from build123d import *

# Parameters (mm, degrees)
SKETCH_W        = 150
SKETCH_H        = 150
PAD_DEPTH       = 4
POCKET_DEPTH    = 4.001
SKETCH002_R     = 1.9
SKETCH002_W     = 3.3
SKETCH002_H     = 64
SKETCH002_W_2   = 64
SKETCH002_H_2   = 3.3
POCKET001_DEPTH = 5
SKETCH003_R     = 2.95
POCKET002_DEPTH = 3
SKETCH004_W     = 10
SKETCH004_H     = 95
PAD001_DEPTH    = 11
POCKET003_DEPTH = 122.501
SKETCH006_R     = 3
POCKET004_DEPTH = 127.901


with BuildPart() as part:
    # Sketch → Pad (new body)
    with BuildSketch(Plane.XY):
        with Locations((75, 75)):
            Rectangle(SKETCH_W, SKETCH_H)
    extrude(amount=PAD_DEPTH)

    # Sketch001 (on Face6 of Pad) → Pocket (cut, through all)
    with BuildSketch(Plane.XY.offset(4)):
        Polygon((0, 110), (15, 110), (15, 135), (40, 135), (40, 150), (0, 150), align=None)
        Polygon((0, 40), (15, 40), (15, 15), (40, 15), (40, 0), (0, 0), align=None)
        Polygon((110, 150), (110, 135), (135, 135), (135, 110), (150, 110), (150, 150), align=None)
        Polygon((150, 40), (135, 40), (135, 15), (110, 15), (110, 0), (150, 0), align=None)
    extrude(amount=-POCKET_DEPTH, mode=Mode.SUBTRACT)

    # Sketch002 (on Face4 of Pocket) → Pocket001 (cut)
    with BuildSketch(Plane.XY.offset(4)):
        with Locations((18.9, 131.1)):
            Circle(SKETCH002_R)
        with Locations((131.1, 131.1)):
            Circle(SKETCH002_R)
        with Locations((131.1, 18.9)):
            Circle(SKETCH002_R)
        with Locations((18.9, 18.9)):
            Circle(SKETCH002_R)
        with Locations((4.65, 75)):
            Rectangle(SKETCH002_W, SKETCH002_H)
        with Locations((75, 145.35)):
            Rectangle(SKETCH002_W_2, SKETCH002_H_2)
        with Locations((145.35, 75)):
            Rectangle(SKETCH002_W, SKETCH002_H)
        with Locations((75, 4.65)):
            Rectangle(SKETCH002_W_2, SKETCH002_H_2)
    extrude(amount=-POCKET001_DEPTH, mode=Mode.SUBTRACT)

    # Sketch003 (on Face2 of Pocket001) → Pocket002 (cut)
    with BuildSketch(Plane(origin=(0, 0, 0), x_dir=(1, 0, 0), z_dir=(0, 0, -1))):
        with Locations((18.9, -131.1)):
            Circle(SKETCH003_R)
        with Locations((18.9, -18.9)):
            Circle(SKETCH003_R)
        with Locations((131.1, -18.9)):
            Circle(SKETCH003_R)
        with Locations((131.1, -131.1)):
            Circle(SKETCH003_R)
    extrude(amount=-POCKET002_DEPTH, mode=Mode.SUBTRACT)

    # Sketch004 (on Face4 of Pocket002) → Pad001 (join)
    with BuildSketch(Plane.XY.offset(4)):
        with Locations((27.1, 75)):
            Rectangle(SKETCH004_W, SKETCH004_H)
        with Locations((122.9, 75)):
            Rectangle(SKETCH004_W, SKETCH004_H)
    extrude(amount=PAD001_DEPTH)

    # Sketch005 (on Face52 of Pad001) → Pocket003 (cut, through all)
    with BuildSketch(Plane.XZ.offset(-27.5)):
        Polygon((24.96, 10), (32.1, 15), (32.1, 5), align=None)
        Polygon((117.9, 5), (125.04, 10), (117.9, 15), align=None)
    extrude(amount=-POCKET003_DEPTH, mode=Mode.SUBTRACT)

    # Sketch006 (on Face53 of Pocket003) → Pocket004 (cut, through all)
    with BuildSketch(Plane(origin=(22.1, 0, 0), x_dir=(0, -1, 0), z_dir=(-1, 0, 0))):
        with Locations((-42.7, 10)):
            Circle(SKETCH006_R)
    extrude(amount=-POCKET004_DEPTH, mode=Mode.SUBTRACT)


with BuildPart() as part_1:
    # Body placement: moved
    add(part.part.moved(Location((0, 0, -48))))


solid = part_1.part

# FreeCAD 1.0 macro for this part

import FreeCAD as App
import Part
import Sketcher

V = App.Vector
Q = App.Units.Quantity

doc = App.newDocument("Part")
body = doc.addObject("PartDesign::Body", "Body")

# Sketch on XY plane
sketch1 = doc.addObject("Sketcher::SketchObject", "Sketch")
body.addObject(sketch1)
sketch1.AttachmentSupport = (doc.XY_Plane, [""])
sketch1.MapMode = "FlatFace"
sketch1.addGeometry(Part.LineSegment(V(0, 150, 0), V(0, 0, 0)), False)
sketch1.addGeometry(Part.LineSegment(V(0, 0, 0), V(150, 0, 0)), False)
sketch1.addGeometry(Part.LineSegment(V(150, 0, 0), V(150, 150, 0)), False)
sketch1.addGeometry(Part.LineSegment(V(150, 150, 0), V(0, 150, 0)), False)
sketch1.addConstraint(Sketcher.Constraint("Coincident", 0, 2, 1, 1))
sketch1.addConstraint(Sketcher.Constraint("Coincident", 1, 2, 2, 1))
sketch1.addConstraint(Sketcher.Constraint("Coincident", 2, 2, 3, 1))
sketch1.addConstraint(Sketcher.Constraint("Coincident", 3, 2, 0, 1))
sketch1.addConstraint(Sketcher.Constraint("Vertical", 0))
sketch1.addConstraint(Sketcher.Constraint("Horizontal", 1))
sketch1.addConstraint(Sketcher.Constraint("Vertical", 2))
sketch1.addConstraint(Sketcher.Constraint("Horizontal", 3))
sketch1.addConstraint(Sketcher.Constraint("Coincident", 0, 2, -1, 1))
sketch1.addConstraint(Sketcher.Constraint("Equal", 3, 0))
sketch1.addConstraint(Sketcher.Constraint("DistanceX", 1, 1, 1, 2, Q("150 mm")))
pad1 = doc.addObject("PartDesign::Pad", "Pad")
body.addObject(pad1)
pad1.Profile = sketch1
pad1.Length = 4

# Sketch on XY plane
sketch2 = doc.addObject("Sketcher::SketchObject", "Sketch001")
body.addObject(sketch2)
sketch2.AttachmentSupport = (doc.XY_Plane, [""])
sketch2.MapMode = "FlatFace"
sketch2.AttachmentOffset = App.Placement(V(0, 0, 4), App.Rotation())
sketch2.addGeometry(Part.LineSegment(V(0, 110, 0), V(15, 110, 0)), False)
sketch2.addGeometry(Part.LineSegment(V(15, 110, 0), V(15, 135, 0)), False)
sketch2.addGeometry(Part.LineSegment(V(15, 135, 0), V(40, 135, 0)), False)
sketch2.addGeometry(Part.LineSegment(V(40, 135, 0), V(40, 150, 0)), False)
sketch2.addGeometry(Part.LineSegment(V(40, 150, 0), V(0, 150, 0)), False)
sketch2.addGeometry(Part.LineSegment(V(0, 150, 0), V(0, 110, 0)), False)
sketch2.addGeometry(Part.LineSegment(V(15, 40, 0), V(0, 40, 0)), False)
sketch2.addGeometry(Part.LineSegment(V(0, 40, 0), V(0, 0, 0)), False)
sketch2.addGeometry(Part.LineSegment(V(0, 0, 0), V(40, 0, 0)), False)
sketch2.addGeometry(Part.LineSegment(V(40, 0, 0), V(40, 15, 0)), False)
sketch2.addGeometry(Part.LineSegment(V(40, 15, 0), V(15, 15, 0)), False)
sketch2.addGeometry(Part.LineSegment(V(15, 15, 0), V(15, 40, 0)), False)
sketch2.addGeometry(Part.LineSegment(V(110, 150, 0), V(110, 135, 0)), False)
sketch2.addGeometry(Part.LineSegment(V(110, 135, 0), V(135, 135, 0)), False)
sketch2.addGeometry(Part.LineSegment(V(135, 135, 0), V(135, 110, 0)), False)
sketch2.addGeometry(Part.LineSegment(V(135, 110, 0), V(150, 110, 0)), False)
sketch2.addGeometry(Part.LineSegment(V(150, 110, 0), V(150, 150, 0)), False)
sketch2.addGeometry(Part.LineSegment(V(150, 150, 0), V(110, 150, 0)), False)
sketch2.addGeometry(Part.LineSegment(V(150, 40, 0), V(135, 40, 0)), False)
sketch2.addGeometry(Part.LineSegment(V(135, 40, 0), V(135, 15, 0)), False)
sketch2.addGeometry(Part.LineSegment(V(135, 15, 0), V(110, 15, 0)), False)
sketch2.addGeometry(Part.LineSegment(V(110, 15, 0), V(110, 0, 0)), False)
sketch2.addGeometry(Part.LineSegment(V(110, 0, 0), V(150, 0, 0)), False)
sketch2.addGeometry(Part.LineSegment(V(150, 0, 0), V(150, 40, 0)), False)
sketch2.addConstraint(Sketcher.Constraint("Coincident", 0, 2, 1, 1))
sketch2.addConstraint(Sketcher.Constraint("Coincident", 1, 2, 2, 1))
sketch2.addConstraint(Sketcher.Constraint("Coincident", 2, 2, 3, 1))
sketch2.addConstraint(Sketcher.Constraint("Coincident", 3, 2, 4, 1))
sketch2.addConstraint(Sketcher.Constraint("Coincident", 4, 2, 5, 1))
sketch2.addConstraint(Sketcher.Constraint("Coincident", 5, 2, 0, 1))
sketch2.addConstraint(Sketcher.Constraint("Coincident", 6, 2, 7, 1))
sketch2.addConstraint(Sketcher.Constraint("Coincident", 7, 2, 8, 1))
sketch2.addConstraint(Sketcher.Constraint("Coincident", 8, 2, 9, 1))
sketch2.addConstraint(Sketcher.Constraint("Coincident", 9, 2, 10, 1))
sketch2.addConstraint(Sketcher.Constraint("Coincident", 10, 2, 11, 1))
sketch2.addConstraint(Sketcher.Constraint("Coincident", 11, 2, 6, 1))
sketch2.addConstraint(Sketcher.Constraint("Coincident", 12, 2, 13, 1))
sketch2.addConstraint(Sketcher.Constraint("Coincident", 13, 2, 14, 1))
sketch2.addConstraint(Sketcher.Constraint("Coincident", 14, 2, 15, 1))
sketch2.addConstraint(Sketcher.Constraint("Coincident", 15, 2, 16, 1))
sketch2.addConstraint(Sketcher.Constraint("Coincident", 16, 2, 17, 1))
sketch2.addConstraint(Sketcher.Constraint("Coincident", 17, 2, 12, 1))
sketch2.addConstraint(Sketcher.Constraint("Coincident", 18, 2, 19, 1))
sketch2.addConstraint(Sketcher.Constraint("Coincident", 19, 2, 20, 1))
sketch2.addConstraint(Sketcher.Constraint("Coincident", 20, 2, 21, 1))
sketch2.addConstraint(Sketcher.Constraint("Coincident", 21, 2, 22, 1))
sketch2.addConstraint(Sketcher.Constraint("Coincident", 22, 2, 23, 1))
sketch2.addConstraint(Sketcher.Constraint("Coincident", 23, 2, 18, 1))
sketch2.addConstraint(Sketcher.Constraint("Horizontal", 0))
sketch2.addConstraint(Sketcher.Constraint("Vertical", 1))
sketch2.addConstraint(Sketcher.Constraint("Horizontal", 2))
sketch2.addConstraint(Sketcher.Constraint("Vertical", 3))
sketch2.addConstraint(Sketcher.Constraint("Horizontal", 4))
sketch2.addConstraint(Sketcher.Constraint("Vertical", 5))
sketch2.addConstraint(Sketcher.Constraint("Horizontal", 6))
sketch2.addConstraint(Sketcher.Constraint("Vertical", 7))
sketch2.addConstraint(Sketcher.Constraint("Horizontal", 8))
sketch2.addConstraint(Sketcher.Constraint("Vertical", 9))
sketch2.addConstraint(Sketcher.Constraint("Horizontal", 10))
sketch2.addConstraint(Sketcher.Constraint("Vertical", 11))
sketch2.addConstraint(Sketcher.Constraint("Vertical", 12))
sketch2.addConstraint(Sketcher.Constraint("Horizontal", 13))
sketch2.addConstraint(Sketcher.Constraint("Vertical", 14))
sketch2.addConstraint(Sketcher.Constraint("Horizontal", 15))
sketch2.addConstraint(Sketcher.Constraint("Vertical", 16))
sketch2.addConstraint(Sketcher.Constraint("Horizontal", 17))
sketch2.addConstraint(Sketcher.Constraint("Horizontal", 18))
sketch2.addConstraint(Sketcher.Constraint("Vertical", 19))
sketch2.addConstraint(Sketcher.Constraint("Horizontal", 20))
sketch2.addConstraint(Sketcher.Constraint("Vertical", 21))
sketch2.addConstraint(Sketcher.Constraint("Horizontal", 22))
sketch2.addConstraint(Sketcher.Constraint("Vertical", 23))
sketch2.addConstraint(Sketcher.Constraint("Coincident", 7, 2, -1, 1))
sketch2.addConstraint(Sketcher.Constraint("PointOnObject", 4, 2, -2))
sketch2.addConstraint(Sketcher.Constraint("PointOnObject", 21, 2, -1))
sketch2.addConstraint(Sketcher.Constraint("Horizontal", 2, 2, 12, 2))
sketch2.addConstraint(Sketcher.Constraint("Horizontal", 5, 2, 14, 2))
sketch2.addConstraint(Sketcher.Constraint("Horizontal", 4, 2, 16, 2))
sketch2.addConstraint(Sketcher.Constraint("Horizontal", 11, 2, 18, 2))
sketch2.addConstraint(Sketcher.Constraint("Horizontal", 10, 2, 19, 2))
sketch2.addConstraint(Sketcher.Constraint("Vertical", 3, 2, 8, 2))
sketch2.addConstraint(Sketcher.Constraint("Vertical", 1, 2, 10, 2))
sketch2.addConstraint(Sketcher.Constraint("Vertical", 14, 2, 18, 2))
sketch2.addConstraint(Sketcher.Constraint("Vertical", 17, 2, 20, 2))
sketch2.addConstraint(Sketcher.Constraint("Vertical", 16, 2, 22, 2))
sketch2.addConstraint(Sketcher.Constraint("Equal", 10, 13))
sketch2.addConstraint(Sketcher.Constraint("Equal", 6, 15))
sketch2.addConstraint(Sketcher.Constraint("Equal", 20, 1))
sketch2.addConstraint(Sketcher.Constraint("Equal", 18, 3))
sketch2.addConstraint(Sketcher.Constraint("Equal", 5, 7))
sketch2.addConstraint(Sketcher.Constraint("Equal", 3, 9))
sketch2.addConstraint(Sketcher.Constraint("DistanceX", 0, 1, 0, 2, Q("15 mm")))
sketch2.addConstraint(Sketcher.Constraint("DistanceX", 2, 1, 2, 2, Q("25 mm")))
sketch2.addConstraint(Sketcher.Constraint("DistanceY", -1, 1, 0, 2, Q("110 mm")))
sketch2.addConstraint(Sketcher.Constraint("DistanceX", -1, 1, 12, 2, Q("110 mm")))
pocket1 = doc.addObject("PartDesign::Pocket", "Pocket")
body.addObject(pocket1)
pocket1.Profile = sketch2
pocket1.Type = "ThroughAll"

# Sketch on XY plane
sketch3 = doc.addObject("Sketcher::SketchObject", "Sketch002")
body.addObject(sketch3)
sketch3.AttachmentSupport = (doc.XY_Plane, [""])
sketch3.MapMode = "FlatFace"
sketch3.AttachmentOffset = App.Placement(V(0, 0, 4), App.Rotation())
sketch3.addGeometry(Part.Circle(V(18.9, 131.1, 0), V(0, 0, 1), 1.9), False)
sketch3.addGeometry(Part.Circle(V(131.1, 131.1, 0), V(0, 0, 1), 1.9), False)
sketch3.addGeometry(Part.Circle(V(131.1, 18.9, 0), V(0, 0, 1), 1.9), False)
sketch3.addGeometry(Part.Circle(V(18.9, 18.9, 0), V(0, 0, 1), 1.9), False)
sketch3.addGeometry(Part.LineSegment(V(3, 107, 0), V(3, 43, 0)), False)
sketch3.addGeometry(Part.LineSegment(V(3, 43, 0), V(6.3, 43, 0)), False)
sketch3.addGeometry(Part.LineSegment(V(6.3, 43, 0), V(6.3, 107, 0)), False)
sketch3.addGeometry(Part.LineSegment(V(6.3, 107, 0), V(3, 107, 0)), False)
sketch3.addGeometry(Part.LineSegment(V(43, 147, 0), V(43, 143.7, 0)), False)
sketch3.addGeometry(Part.LineSegment(V(43, 143.7, 0), V(107, 143.7, 0)), False)
sketch3.addGeometry(Part.LineSegment(V(107, 143.7, 0), V(107, 147, 0)), False)
sketch3.addGeometry(Part.LineSegment(V(107, 147, 0), V(43, 147, 0)), False)
sketch3.addGeometry(Part.LineSegment(V(143.7, 107, 0), V(143.7, 43, 0)), False)
sketch3.addGeometry(Part.LineSegment(V(143.7, 43, 0), V(147, 43, 0)), False)
sketch3.addGeometry(Part.LineSegment(V(147, 43, 0), V(147, 107, 0)), False)
sketch3.addGeometry(Part.LineSegment(V(147, 107, 0), V(143.7, 107, 0)), False)
sketch3.addGeometry(Part.LineSegment(V(43, 6.3, 0), V(43, 3, 0)), False)
sketch3.addGeometry(Part.LineSegment(V(43, 3, 0), V(107, 3, 0)), False)
sketch3.addGeometry(Part.LineSegment(V(107, 3, 0), V(107, 6.3, 0)), False)
sketch3.addGeometry(Part.LineSegment(V(107, 6.3, 0), V(43, 6.3, 0)), False)
sketch3.addConstraint(Sketcher.Constraint("Coincident", 4, 2, 5, 1))
sketch3.addConstraint(Sketcher.Constraint("Coincident", 5, 2, 6, 1))
sketch3.addConstraint(Sketcher.Constraint("Coincident", 6, 2, 7, 1))
sketch3.addConstraint(Sketcher.Constraint("Coincident", 7, 2, 4, 1))
sketch3.addConstraint(Sketcher.Constraint("Coincident", 8, 2, 9, 1))
sketch3.addConstraint(Sketcher.Constraint("Coincident", 9, 2, 10, 1))
sketch3.addConstraint(Sketcher.Constraint("Coincident", 10, 2, 11, 1))
sketch3.addConstraint(Sketcher.Constraint("Coincident", 11, 2, 8, 1))
sketch3.addConstraint(Sketcher.Constraint("Coincident", 12, 2, 13, 1))
sketch3.addConstraint(Sketcher.Constraint("Coincident", 13, 2, 14, 1))
sketch3.addConstraint(Sketcher.Constraint("Coincident", 14, 2, 15, 1))
sketch3.addConstraint(Sketcher.Constraint("Coincident", 15, 2, 12, 1))
sketch3.addConstraint(Sketcher.Constraint("Coincident", 16, 2, 17, 1))
sketch3.addConstraint(Sketcher.Constraint("Coincident", 17, 2, 18, 1))
sketch3.addConstraint(Sketcher.Constraint("Coincident", 18, 2, 19, 1))
sketch3.addConstraint(Sketcher.Constraint("Coincident", 19, 2, 16, 1))
sketch3.addConstraint(Sketcher.Constraint("Vertical", 4))
sketch3.addConstraint(Sketcher.Constraint("Horizontal", 5))
sketch3.addConstraint(Sketcher.Constraint("Vertical", 6))
sketch3.addConstraint(Sketcher.Constraint("Horizontal", 7))
sketch3.addConstraint(Sketcher.Constraint("Vertical", 8))
sketch3.addConstraint(Sketcher.Constraint("Horizontal", 9))
sketch3.addConstraint(Sketcher.Constraint("Vertical", 10))
sketch3.addConstraint(Sketcher.Constraint("Horizontal", 11))
sketch3.addConstraint(Sketcher.Constraint("Vertical", 12))
sketch3.addConstraint(Sketcher.Constraint("Horizontal", 13))
sketch3.addConstraint(Sketcher.Constraint("Vertical", 14))
sketch3.addConstraint(Sketcher.Constraint("Horizontal", 15))
sketch3.addConstraint(Sketcher.Constraint("Vertical", 16))
sketch3.addConstraint(Sketcher.Constraint("Horizontal", 17))
sketch3.addConstraint(Sketcher.Constraint("Vertical", 18))
sketch3.addConstraint(Sketcher.Constraint("Horizontal", 19))
sketch3.addConstraint(Sketcher.Constraint("Equal", 0, 1))
sketch3.addConstraint(Sketcher.Constraint("Equal", 1, 2))
sketch3.addConstraint(Sketcher.Constraint("Equal", 2, 3))
sketch3.addConstraint(Sketcher.Constraint("Horizontal", 0, 3, 1, 3))
sketch3.addConstraint(Sketcher.Constraint("Horizontal", 2, 3, 3, 3))
sketch3.addConstraint(Sketcher.Constraint("Horizontal", 5, 2, 12, 2))
sketch3.addConstraint(Sketcher.Constraint("Horizontal", 7, 2, 14, 2))
sketch3.addConstraint(Sketcher.Constraint("Vertical", 1, 3, 2, 3))
sketch3.addConstraint(Sketcher.Constraint("Vertical", 0, 3, 3, 3))
sketch3.addConstraint(Sketcher.Constraint("Vertical", 11, 2, 16, 2))
sketch3.addConstraint(Sketcher.Constraint("Vertical", 10, 2, 17, 2))
sketch3.addConstraint(Sketcher.Constraint("Equal", 7, 13))
sketch3.addConstraint(Sketcher.Constraint("Equal", 19, 4))
sketch3.addConstraint(Sketcher.Constraint("Equal", 15, 8))
sketch3.addConstraint(Sketcher.Constraint("Equal", 10, 16))
sketch3.addConstraint(Sketcher.Constraint("Diameter", 0, Q("3.8 mm")))
sketch3.addConstraint(Sketcher.Constraint("DistanceX", 9, 1, 9, 2, Q("64 mm")))
sketch3.addConstraint(Sketcher.Constraint("DistanceX", 5, 1, 5, 2, Q("3.3 mm")))
sketch3.addConstraint(Sketcher.Constraint("DistanceX", -1, 1, 4, 2, Q("3 mm")))
sketch3.addConstraint(Sketcher.Constraint("DistanceY", -1, 1, 4, 2, Q("43 mm")))
sketch3.addConstraint(Sketcher.Constraint("DistanceX", -1, 1, 8, 2, Q("43 mm")))
sketch3.addConstraint(Sketcher.Constraint("DistanceY", -1, 1, 10, 2, Q("147 mm")))
sketch3.addConstraint(Sketcher.Constraint("DistanceX", -1, 1, 13, 2, Q("147 mm")))
sketch3.addConstraint(Sketcher.Constraint("DistanceY", -1, 1, 16, 2, Q("3 mm")))
sketch3.addConstraint(Sketcher.Constraint("DistanceX", -1, 1, 0, 3, Q("18.9 mm")))
sketch3.addConstraint(Sketcher.Constraint("DistanceY", -1, 1, 0, 3, Q("131.1 mm")))
sketch3.addConstraint(Sketcher.Constraint("DistanceX", -1, 1, 1, 3, Q("131.1 mm")))
sketch3.addConstraint(Sketcher.Constraint("DistanceY", -1, 1, 2, 3, Q("18.9 mm")))
pocket2 = doc.addObject("PartDesign::Pocket", "Pocket001")
body.addObject(pocket2)
pocket2.Profile = sketch3
pocket2.Length = 5

# Sketch on XY plane
sketch4 = doc.addObject("Sketcher::SketchObject", "Sketch003")
body.addObject(sketch4)
sketch4.AttachmentSupport = (doc.XY_Plane, [""])
sketch4.MapMode = "FlatFace"
sketch4.addGeometry(Part.Circle(V(18.9, 131.1, 0), V(0, 0, 1), 3), False)
sketch4.addGeometry(Part.Circle(V(18.9, 18.9, 0), V(0, 0, 1), 3), False)
sketch4.addGeometry(Part.Circle(V(131.1, 18.9, 0), V(0, 0, 1), 3), False)
sketch4.addGeometry(Part.Circle(V(131.1, 131.1, 0), V(0, 0, 1), 3), False)
sketch4.addConstraint(Sketcher.Constraint("Equal", 0, 1))
sketch4.addConstraint(Sketcher.Constraint("Equal", 1, 2))
sketch4.addConstraint(Sketcher.Constraint("Equal", 2, 3))
sketch4.addConstraint(Sketcher.Constraint("Horizontal", 1, 3, 2, 3))
sketch4.addConstraint(Sketcher.Constraint("Horizontal", 0, 3, 3, 3))
sketch4.addConstraint(Sketcher.Constraint("Vertical", 0, 3, 1, 3))
sketch4.addConstraint(Sketcher.Constraint("Vertical", 2, 3, 3, 3))
sketch4.addConstraint(Sketcher.Constraint("Diameter", 0, Q("5.9 mm")))
sketch4.addConstraint(Sketcher.Constraint("DistanceX", -1, 1, 0, 3, Q("18.9 mm")))
sketch4.addConstraint(Sketcher.Constraint("DistanceY", -1, 1, 0, 3, Q("131.1 mm")))
sketch4.addConstraint(Sketcher.Constraint("DistanceY", -1, 1, 1, 3, Q("18.9 mm")))
sketch4.addConstraint(Sketcher.Constraint("DistanceX", -1, 1, 2, 3, Q("131.1 mm")))
pocket3 = doc.addObject("PartDesign::Pocket", "Pocket002")
body.addObject(pocket3)
pocket3.Profile = sketch4
pocket3.Length = 3
pocket3.Reversed = True

# Sketch on XY plane
sketch5 = doc.addObject("Sketcher::SketchObject", "Sketch004")
body.addObject(sketch5)
sketch5.AttachmentSupport = (doc.XY_Plane, [""])
sketch5.MapMode = "FlatFace"
sketch5.AttachmentOffset = App.Placement(V(0, 0, 4), App.Rotation())
sketch5.addGeometry(Part.LineSegment(V(22, 122, 0), V(22, 28, 0)), False)
sketch5.addGeometry(Part.LineSegment(V(22, 28, 0), V(32, 28, 0)), False)
sketch5.addGeometry(Part.LineSegment(V(32, 28, 0), V(32, 122, 0)), False)
sketch5.addGeometry(Part.LineSegment(V(32, 122, 0), V(22, 122, 0)), False)
sketch5.addGeometry(Part.LineSegment(V(118, 122, 0), V(118, 28, 0)), False)
sketch5.addGeometry(Part.LineSegment(V(118, 28, 0), V(128, 28, 0)), False)
sketch5.addGeometry(Part.LineSegment(V(128, 28, 0), V(128, 122, 0)), False)
sketch5.addGeometry(Part.LineSegment(V(128, 122, 0), V(118, 122, 0)), False)
sketch5.addConstraint(Sketcher.Constraint("Coincident", 0, 2, 1, 1))
sketch5.addConstraint(Sketcher.Constraint("Coincident", 1, 2, 2, 1))
sketch5.addConstraint(Sketcher.Constraint("Coincident", 2, 2, 3, 1))
sketch5.addConstraint(Sketcher.Constraint("Coincident", 3, 2, 0, 1))
sketch5.addConstraint(Sketcher.Constraint("Coincident", 4, 2, 5, 1))
sketch5.addConstraint(Sketcher.Constraint("Coincident", 5, 2, 6, 1))
sketch5.addConstraint(Sketcher.Constraint("Coincident", 6, 2, 7, 1))
sketch5.addConstraint(Sketcher.Constraint("Coincident", 7, 2, 4, 1))
sketch5.addConstraint(Sketcher.Constraint("Vertical", 0))
sketch5.addConstraint(Sketcher.Constraint("Horizontal", 1))
sketch5.addConstraint(Sketcher.Constraint("Vertical", 2))
sketch5.addConstraint(Sketcher.Constraint("Horizontal", 3))
sketch5.addConstraint(Sketcher.Constraint("Vertical", 4))
sketch5.addConstraint(Sketcher.Constraint("Horizontal", 5))
sketch5.addConstraint(Sketcher.Constraint("Vertical", 6))
sketch5.addConstraint(Sketcher.Constraint("Horizontal", 7))
sketch5.addConstraint(Sketcher.Constraint("Horizontal", 1, 2, 4, 2))
sketch5.addConstraint(Sketcher.Constraint("Horizontal", 3, 2, 6, 2))
sketch5.addConstraint(Sketcher.Constraint("Equal", 3, 5))
sketch5.addConstraint(Sketcher.Constraint("DistanceX", 1, 1, 1, 2, Q("10 mm")))
sketch5.addConstraint(Sketcher.Constraint("DistanceY", 0, 2, 0, 1, Q("95 mm")))
sketch5.addConstraint(Sketcher.Constraint("DistanceX", -1, 1, 0, 2, Q("22.1 mm")))
sketch5.addConstraint(Sketcher.Constraint("DistanceY", -1, 1, 0, 2, Q("27.5 mm")))
sketch5.addConstraint(Sketcher.Constraint("DistanceX", -1, 1, 4, 2, Q("117.9 mm")))
pad2 = doc.addObject("PartDesign::Pad", "Pad001")
body.addObject(pad2)
pad2.Profile = sketch5
pad2.Length = 11

# Sketch on XZ plane
sketch6 = doc.addObject("Sketcher::SketchObject", "Sketch005")
body.addObject(sketch6)
sketch6.AttachmentSupport = (doc.XZ_Plane, [""])
sketch6.MapMode = "FlatFace"
sketch6.AttachmentOffset = App.Placement(V(0, 0, -27.5), App.Rotation())
sketch6.addGeometry(Part.LineSegment(V(32, 15, 0), V(25, 10, 0)), False)
sketch6.addGeometry(Part.LineSegment(V(25, 10, 0), V(32, 5, 0)), False)
sketch6.addGeometry(Part.LineSegment(V(32, 5, 0), V(32, 15, 0)), False)
sketch6.addGeometry(Part.LineSegment(V(118, 5, 0), V(125, 10, 0)), False)
sketch6.addGeometry(Part.LineSegment(V(125, 10, 0), V(118, 15, 0)), False)
sketch6.addGeometry(Part.LineSegment(V(118, 15, 0), V(118, 5, 0)), False)
sketch6.addConstraint(Sketcher.Constraint("Coincident", 0, 2, 1, 1))
sketch6.addConstraint(Sketcher.Constraint("Coincident", 1, 2, 2, 1))
sketch6.addConstraint(Sketcher.Constraint("Coincident", 2, 2, 0, 1))
sketch6.addConstraint(Sketcher.Constraint("Coincident", 3, 2, 4, 1))
sketch6.addConstraint(Sketcher.Constraint("Coincident", 4, 2, 5, 1))
sketch6.addConstraint(Sketcher.Constraint("Coincident", 5, 2, 3, 1))
sketch6.addConstraint(Sketcher.Constraint("Vertical", 2))
sketch6.addConstraint(Sketcher.Constraint("Vertical", 5))
sketch6.addConstraint(Sketcher.Constraint("Parallel", 0, 3))
sketch6.addConstraint(Sketcher.Constraint("Parallel", 1, 4))
sketch6.addConstraint(Sketcher.Constraint("Horizontal", 0, 2, 3, 2))
sketch6.addConstraint(Sketcher.Constraint("Horizontal", 2, 2, 4, 2))
sketch6.addConstraint(Sketcher.Constraint("Horizontal", 1, 2, 5, 2))
sketch6.addConstraint(Sketcher.Constraint("DistanceY", 2, 1, 2, 2, Q("10 mm")))
sketch6.addConstraint(Sketcher.Constraint("DistanceY", -1, 1, 0, 2, Q("10 mm")))
sketch6.addConstraint(Sketcher.Constraint("DistanceX", -1, 1, 1, 2, Q("32.1 mm")))
sketch6.addConstraint(Sketcher.Constraint("DistanceX", -1, 1, 4, 2, Q("117.9 mm")))
sketch6.addConstraint(Sketcher.Constraint("DistanceX", -1, 1, 0, 2, Q("24.96 mm")))
pocket4 = doc.addObject("PartDesign::Pocket", "Pocket003")
body.addObject(pocket4)
pocket4.Profile = sketch6
pocket4.Type = "ThroughAll"

# Sketch on YZ plane
sketch7 = doc.addObject("Sketcher::SketchObject", "Sketch006")
body.addObject(sketch7)
sketch7.AttachmentSupport = (doc.YZ_Plane, [""])
sketch7.MapMode = "FlatFace"
sketch7.AttachmentOffset = App.Placement(V(0, 0, 22.1), App.Rotation())
sketch7.addGeometry(Part.Circle(V(42.7, 10, 0), V(0, 0, 1), 3), False)
sketch7.addConstraint(Sketcher.Constraint("Diameter", 0, Q("6 mm")))
sketch7.addConstraint(Sketcher.Constraint("DistanceY", -1, 1, 0, 3, Q("10 mm")))
sketch7.addConstraint(Sketcher.Constraint("DistanceX", -1, 1, 0, 3, Q("42.7 mm")))
pocket5 = doc.addObject("PartDesign::Pocket", "Pocket004")
body.addObject(pocket5)
pocket5.Profile = sketch7
pocket5.Type = "ThroughAll"
pocket5.Reversed = True
body2 = doc.addObject("PartDesign::Body", "Body001")
doc.recompute()

body.Placement = App.Placement(V(0, 0, -48), App.Rotation(V(0, 0, 1), 0))
boolean = doc.addObject("PartDesign::Boolean", "Boolean")
body2.addObject(boolean)
boolean.Type = "Fuse"
boolean.addObjects([body])

doc.recompute()
